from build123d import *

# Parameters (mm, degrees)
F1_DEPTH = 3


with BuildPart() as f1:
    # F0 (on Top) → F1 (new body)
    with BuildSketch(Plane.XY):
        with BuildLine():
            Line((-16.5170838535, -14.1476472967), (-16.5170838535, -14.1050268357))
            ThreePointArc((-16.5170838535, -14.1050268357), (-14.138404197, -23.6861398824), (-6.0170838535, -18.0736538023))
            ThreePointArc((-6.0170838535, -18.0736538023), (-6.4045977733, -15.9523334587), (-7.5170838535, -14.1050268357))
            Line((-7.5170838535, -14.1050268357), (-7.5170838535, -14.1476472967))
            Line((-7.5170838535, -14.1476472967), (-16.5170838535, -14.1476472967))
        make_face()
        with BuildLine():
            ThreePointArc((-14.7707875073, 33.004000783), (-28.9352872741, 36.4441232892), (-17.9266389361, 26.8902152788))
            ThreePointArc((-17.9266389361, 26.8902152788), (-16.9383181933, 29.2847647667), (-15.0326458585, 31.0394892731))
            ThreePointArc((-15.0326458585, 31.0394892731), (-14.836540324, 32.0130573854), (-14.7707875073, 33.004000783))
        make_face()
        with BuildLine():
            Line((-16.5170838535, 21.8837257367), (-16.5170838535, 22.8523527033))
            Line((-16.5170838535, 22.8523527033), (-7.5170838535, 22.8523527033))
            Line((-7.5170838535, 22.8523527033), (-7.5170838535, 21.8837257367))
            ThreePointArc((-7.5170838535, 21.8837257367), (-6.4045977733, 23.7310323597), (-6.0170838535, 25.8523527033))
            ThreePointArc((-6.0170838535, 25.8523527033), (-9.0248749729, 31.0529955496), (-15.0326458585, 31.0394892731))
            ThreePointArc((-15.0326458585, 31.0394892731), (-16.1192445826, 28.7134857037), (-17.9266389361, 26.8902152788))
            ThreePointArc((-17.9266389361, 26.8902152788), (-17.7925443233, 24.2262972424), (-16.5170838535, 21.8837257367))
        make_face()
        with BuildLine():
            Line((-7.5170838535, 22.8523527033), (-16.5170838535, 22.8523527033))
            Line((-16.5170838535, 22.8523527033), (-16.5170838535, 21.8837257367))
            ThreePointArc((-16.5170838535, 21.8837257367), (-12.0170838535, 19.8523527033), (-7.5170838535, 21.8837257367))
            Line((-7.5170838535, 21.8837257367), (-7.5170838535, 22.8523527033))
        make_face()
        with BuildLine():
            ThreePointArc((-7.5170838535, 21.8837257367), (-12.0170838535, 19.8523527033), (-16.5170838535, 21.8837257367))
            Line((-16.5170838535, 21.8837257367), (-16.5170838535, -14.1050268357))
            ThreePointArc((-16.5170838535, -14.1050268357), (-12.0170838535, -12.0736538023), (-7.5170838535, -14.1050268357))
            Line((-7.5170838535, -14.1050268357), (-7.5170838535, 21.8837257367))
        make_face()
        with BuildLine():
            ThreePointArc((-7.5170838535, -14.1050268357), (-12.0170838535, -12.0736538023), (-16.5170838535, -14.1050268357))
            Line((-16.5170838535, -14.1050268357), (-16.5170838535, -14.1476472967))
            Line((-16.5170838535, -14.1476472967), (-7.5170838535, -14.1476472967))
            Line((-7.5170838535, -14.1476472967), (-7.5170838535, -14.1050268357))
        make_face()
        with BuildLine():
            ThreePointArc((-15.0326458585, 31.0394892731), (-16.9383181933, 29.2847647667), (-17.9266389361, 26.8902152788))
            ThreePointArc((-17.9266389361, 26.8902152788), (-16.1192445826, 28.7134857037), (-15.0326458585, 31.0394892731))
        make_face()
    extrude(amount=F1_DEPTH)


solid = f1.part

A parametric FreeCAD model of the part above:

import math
import FreeCAD as App
import Part
import Sketcher
Q = App.Units.Quantity

doc = App.newDocument("Part")
params = doc.addObject("Spreadsheet::Sheet", "Params")
for row, (alias, value) in enumerate([
    ("sketch1_radius", "6 mm"),
    ("sketch1_radius2", "7.5 mm"),
    ("pad1_length", "3 mm"),
], start=1):
    params.set(f"A{row}", alias)
    params.set(f"B{row}", "=" + value)
    params.setAlias(f"B{row}", alias)

body = doc.addObject("PartDesign::Body", "Body")

sketch1 = body.newObject("Sketcher::SketchObject", "Sketch")
sketch1.AttachmentSupport = (doc.getObject("XY_Plane"), [""])
sketch1.MapMode = "FlatFace"
sketch1.addGeometry(Part.ArcOfCircle(Part.Circle(App.Vector(-12, -18.1, 0), App.Vector(0, 0, 1), 6), math.radians(139), math.radians(360)), False)
sketch1.addGeometry(Part.ArcOfCircle(Part.Circle(App.Vector(-12, -18.1, 0), App.Vector(0, 0, 1), 6), math.radians(0), math.radians(41)), False)
sketch1.addGeometry(Part.LineSegment(App.Vector(-7.5, -14.1, 0), App.Vector(-7.5, 21.9, 0)), False)
sketch1.addGeometry(Part.ArcOfCircle(Part.Circle(App.Vector(-12, 25.9, 0), App.Vector(0, 0, 1), 6), math.radians(-41), math.radians(0)), False)
sketch1.addGeometry(Part.ArcOfCircle(Part.Circle(App.Vector(-12, 25.9, 0), App.Vector(0, 0, 1), 6), math.radians(0), math.radians(120)), False)
sketch1.addGeometry(Part.ArcOfCircle(Part.Circle(App.Vector(-22.3, 33, 0), App.Vector(0, 0, 1), 7.5), math.radians(-15.18), math.radians(0)), False)
sketch1.addGeometry(Part.ArcOfCircle(Part.Circle(App.Vector(-22.3, 33, 0), App.Vector(0, 0, 1), 7.5), math.radians(0), math.radians(305)), False)
sketch1.addGeometry(Part.ArcOfCircle(Part.Circle(App.Vector(-12, 25.9, 0), App.Vector(0, 0, 1), 6), math.radians(170), math.radians(221)), False)
sketch1.addGeometry(Part.LineSegment(App.Vector(-16.5, 21.9, 0), App.Vector(-16.5, -14.1, 0)), False)
sketch1.addConstraint(Sketcher.Constraint("Tangent", 0, 2, 1, 1))
sketch1.addConstraint(Sketcher.Constraint("Coincident", 1, 2, 2, 1))
sketch1.addConstraint(Sketcher.Constraint("Coincident", 2, 2, 3, 1))
sketch1.addConstraint(Sketcher.Constraint("Tangent", 3, 2, 4, 1))
sketch1.addConstraint(Sketcher.Constraint("Coincident", 4, 2, 5, 1))
sketch1.addConstraint(Sketcher.Constraint("Tangent", 5, 2, 6, 1))
sketch1.addConstraint(Sketcher.Constraint("Coincident", 6, 2, 7, 1))
sketch1.addConstraint(Sketcher.Constraint("Coincident", 7, 2, 8, 1))
sketch1.addConstraint(Sketcher.Constraint("Coincident", 8, 2, 0, 1))
sketch1.addConstraint(Sketcher.Constraint("Vertical", 2))
sketch1.addConstraint(Sketcher.Constraint("Vertical", 8))
sketch1.addConstraint(Sketcher.Constraint("Coincident", 7, 3, 3, 3))
sketch1.addConstraint(Sketcher.Constraint("Equal", 0, 1))
sketch1.addConstraint(Sketcher.Constraint("Equal", 1, 3))
sketch1.addConstraint(Sketcher.Constraint("Equal", 3, 4))
sketch1.addConstraint(Sketcher.Constraint("Equal", 5, 6))
sketch1.addConstraint(Sketcher.Constraint("Equal", 4, 7))
sketch1.addConstraint(Sketcher.Constraint("Horizontal", 1, 3, 0, 2))
sketch1.addConstraint(Sketcher.Constraint("Horizontal", 7, 3, 3, 2))
sketch1.addConstraint(Sketcher.Constraint("Horizontal", 6, 3, 5, 2))
sketch1.addConstraint(Sketcher.Constraint("Horizontal", 2, 2, 7, 2))
sketch1.addConstraint(Sketcher.Constraint("Horizontal", 1, 2, 8, 2))
sketch1.addConstraint(Sketcher.Constraint("Radius", 0, Q("6 mm")))
sketch1.addConstraint(Sketcher.Constraint("Radius", 5, Q("7.5 mm")))
sketch1.addConstraint(Sketcher.Constraint("DistanceX", 7, 2, 2, 2, Q("9 mm")))
sketch1.addConstraint(Sketcher.Constraint("DistanceY", -1, 1, 5, 3, Q("33.004001 mm")))
sketch1.addConstraint(Sketcher.Constraint("DistanceY", 2, 1, 2, 2, Q("35.988753 mm")))
sketch1.addConstraint(Sketcher.Constraint("DistanceY", -1, 1, 4, 2, Q("31.039489 mm")))
sketch1.addConstraint(Sketcher.Constraint("DistanceX", 6, 2, -1, 1, Q("17.926639 mm")))
sketch1.addConstraint(Sketcher.Constraint("DistanceY", 3, 3, 5, 3, Q("7.151648 mm")))
sketch1.setExpression("Constraints[22]", "Params.sketch1_radius")
sketch1.setExpression("Constraints[23]", "Params.sketch1_radius2")
pad1 = body.newObject("PartDesign::Pad", "Pad")
pad1.Profile = sketch1
pad1.setExpression("Length", "Params.pad1_length")

doc.recompute()
